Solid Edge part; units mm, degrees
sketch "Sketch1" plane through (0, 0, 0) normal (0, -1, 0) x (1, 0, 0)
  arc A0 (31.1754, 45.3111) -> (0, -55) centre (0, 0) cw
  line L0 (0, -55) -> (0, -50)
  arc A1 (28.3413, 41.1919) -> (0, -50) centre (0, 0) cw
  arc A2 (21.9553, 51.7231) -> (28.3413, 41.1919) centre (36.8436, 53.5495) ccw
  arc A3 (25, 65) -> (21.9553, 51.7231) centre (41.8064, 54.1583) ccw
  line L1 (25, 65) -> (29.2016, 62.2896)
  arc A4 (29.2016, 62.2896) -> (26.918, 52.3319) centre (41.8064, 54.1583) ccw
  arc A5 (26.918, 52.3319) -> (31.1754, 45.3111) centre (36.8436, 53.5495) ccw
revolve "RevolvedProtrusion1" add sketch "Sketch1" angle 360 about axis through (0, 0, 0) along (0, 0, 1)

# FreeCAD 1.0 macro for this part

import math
import FreeCAD as App
import Part
import Sketcher

V = App.Vector
Q = App.Units.Quantity

doc = App.newDocument("Part")
body = doc.addObject("PartDesign::Body", "Body")

# Sketch on XZ plane
sketch1 = doc.addObject("Sketcher::SketchObject", "Sketch")
body.addObject(sketch1)
sketch1.AttachmentSupport = (doc.XZ_Plane, [""])
sketch1.MapMode = "FlatFace"
sketch1.addGeometry(Part.ArcOfCircle(Part.Circle(V(0, 0, 0), V(0, 0, 1), 55.000012), math.radians(-90), math.radians(55.470858)), False)
sketch1.addGeometry(Part.ArcOfCircle(Part.Circle(V(36.8436, 53.5495, 0), V(0, 0, 1), 10.000004), math.radians(-173.006315), math.radians(-124.528825)), False)
sketch1.addGeometry(Part.ArcOfCircle(Part.Circle(V(41.8064, 54.1583, 0), V(0, 0, 1), 14.999967), math.radians(147.174119), math.radians(186.993685)), False)
sketch1.addGeometry(Part.LineSegment(V(29.2016, 62.2896, 0), V(25, 65, 0)), False)
sketch1.addGeometry(Part.ArcOfCircle(Part.Circle(V(41.8064, 54.1583, 0), V(0, 0, 1), 19.999938), math.radians(147.174199), math.radians(186.99372)), False)
sketch1.addGeometry(Part.ArcOfCircle(Part.Circle(V(36.8436, 53.5495, 0), V(0, 0, 1), 14.999907), math.radians(-173.006268), math.radians(-124.528825)), False)
sketch1.addGeometry(Part.ArcOfCircle(Part.Circle(V(0, 0, 0), V(0, 0, 1), 50.000019), math.radians(-90), math.radians(55.470827)), False)
sketch1.addGeometry(Part.LineSegment(V(0, -50, 0), V(0, -55, 0)), False)
sketch1.addConstraint(Sketcher.Constraint("Tangent", 0, 2, 1, 2))
sketch1.addConstraint(Sketcher.Constraint("Tangent", 1, 1, 2, 2))
sketch1.addConstraint(Sketcher.Constraint("Coincident", 2, 1, 3, 1))
sketch1.addConstraint(Sketcher.Constraint("Coincident", 3, 2, 4, 1))
sketch1.addConstraint(Sketcher.Constraint("Tangent", 4, 2, 5, 1))
sketch1.addConstraint(Sketcher.Constraint("Tangent", 5, 2, 6, 2))
sketch1.addConstraint(Sketcher.Constraint("Coincident", 6, 1, 7, 1))
sketch1.addConstraint(Sketcher.Constraint("Coincident", 7, 2, 0, 1))
sketch1.addConstraint(Sketcher.Constraint("Vertical", 7))
sketch1.addConstraint(Sketcher.Constraint("Coincident", 0, 3, -1, 1))
sketch1.addConstraint(Sketcher.Constraint("Coincident", 6, 3, -1, 1))
sketch1.addConstraint(Sketcher.Constraint("Coincident", 4, 3, 2, 3))
sketch1.addConstraint(Sketcher.Constraint("Coincident", 5, 3, 1, 3))
sketch1.addConstraint(Sketcher.Constraint("Equal", 2, 5))
sketch1.addConstraint(Sketcher.Constraint("PointOnObject", 6, 1, -2))
sketch1.addConstraint(Sketcher.Constraint("Radius", 0, Q("55 mm")))
sketch1.addConstraint(Sketcher.Constraint("Radius", 1, Q("10 mm")))
sketch1.addConstraint(Sketcher.Constraint("Radius", 2, Q("15 mm")))
sketch1.addConstraint(Sketcher.Constraint("DistanceX", -1, 1, 3, 2, Q("25 mm")))
sketch1.addConstraint(Sketcher.Constraint("DistanceY", -1, 1, 3, 2, Q("65 mm")))
sketch1.addConstraint(Sketcher.Constraint("DistanceY", 1, 3, 2, 1, Q("8.74 mm")))
sketch1.addConstraint(Sketcher.Constraint("DistanceY", 5, 2, 1, 1, Q("11.14 mm")))
revolution = doc.addObject("PartDesign::Revolution", "Revolution")
body.addObject(revolution)
revolution.Profile = sketch1
revolution.ReferenceAxis = (sketch1, ["V_Axis"])
revolution.Angle = 360

doc.recompute()
